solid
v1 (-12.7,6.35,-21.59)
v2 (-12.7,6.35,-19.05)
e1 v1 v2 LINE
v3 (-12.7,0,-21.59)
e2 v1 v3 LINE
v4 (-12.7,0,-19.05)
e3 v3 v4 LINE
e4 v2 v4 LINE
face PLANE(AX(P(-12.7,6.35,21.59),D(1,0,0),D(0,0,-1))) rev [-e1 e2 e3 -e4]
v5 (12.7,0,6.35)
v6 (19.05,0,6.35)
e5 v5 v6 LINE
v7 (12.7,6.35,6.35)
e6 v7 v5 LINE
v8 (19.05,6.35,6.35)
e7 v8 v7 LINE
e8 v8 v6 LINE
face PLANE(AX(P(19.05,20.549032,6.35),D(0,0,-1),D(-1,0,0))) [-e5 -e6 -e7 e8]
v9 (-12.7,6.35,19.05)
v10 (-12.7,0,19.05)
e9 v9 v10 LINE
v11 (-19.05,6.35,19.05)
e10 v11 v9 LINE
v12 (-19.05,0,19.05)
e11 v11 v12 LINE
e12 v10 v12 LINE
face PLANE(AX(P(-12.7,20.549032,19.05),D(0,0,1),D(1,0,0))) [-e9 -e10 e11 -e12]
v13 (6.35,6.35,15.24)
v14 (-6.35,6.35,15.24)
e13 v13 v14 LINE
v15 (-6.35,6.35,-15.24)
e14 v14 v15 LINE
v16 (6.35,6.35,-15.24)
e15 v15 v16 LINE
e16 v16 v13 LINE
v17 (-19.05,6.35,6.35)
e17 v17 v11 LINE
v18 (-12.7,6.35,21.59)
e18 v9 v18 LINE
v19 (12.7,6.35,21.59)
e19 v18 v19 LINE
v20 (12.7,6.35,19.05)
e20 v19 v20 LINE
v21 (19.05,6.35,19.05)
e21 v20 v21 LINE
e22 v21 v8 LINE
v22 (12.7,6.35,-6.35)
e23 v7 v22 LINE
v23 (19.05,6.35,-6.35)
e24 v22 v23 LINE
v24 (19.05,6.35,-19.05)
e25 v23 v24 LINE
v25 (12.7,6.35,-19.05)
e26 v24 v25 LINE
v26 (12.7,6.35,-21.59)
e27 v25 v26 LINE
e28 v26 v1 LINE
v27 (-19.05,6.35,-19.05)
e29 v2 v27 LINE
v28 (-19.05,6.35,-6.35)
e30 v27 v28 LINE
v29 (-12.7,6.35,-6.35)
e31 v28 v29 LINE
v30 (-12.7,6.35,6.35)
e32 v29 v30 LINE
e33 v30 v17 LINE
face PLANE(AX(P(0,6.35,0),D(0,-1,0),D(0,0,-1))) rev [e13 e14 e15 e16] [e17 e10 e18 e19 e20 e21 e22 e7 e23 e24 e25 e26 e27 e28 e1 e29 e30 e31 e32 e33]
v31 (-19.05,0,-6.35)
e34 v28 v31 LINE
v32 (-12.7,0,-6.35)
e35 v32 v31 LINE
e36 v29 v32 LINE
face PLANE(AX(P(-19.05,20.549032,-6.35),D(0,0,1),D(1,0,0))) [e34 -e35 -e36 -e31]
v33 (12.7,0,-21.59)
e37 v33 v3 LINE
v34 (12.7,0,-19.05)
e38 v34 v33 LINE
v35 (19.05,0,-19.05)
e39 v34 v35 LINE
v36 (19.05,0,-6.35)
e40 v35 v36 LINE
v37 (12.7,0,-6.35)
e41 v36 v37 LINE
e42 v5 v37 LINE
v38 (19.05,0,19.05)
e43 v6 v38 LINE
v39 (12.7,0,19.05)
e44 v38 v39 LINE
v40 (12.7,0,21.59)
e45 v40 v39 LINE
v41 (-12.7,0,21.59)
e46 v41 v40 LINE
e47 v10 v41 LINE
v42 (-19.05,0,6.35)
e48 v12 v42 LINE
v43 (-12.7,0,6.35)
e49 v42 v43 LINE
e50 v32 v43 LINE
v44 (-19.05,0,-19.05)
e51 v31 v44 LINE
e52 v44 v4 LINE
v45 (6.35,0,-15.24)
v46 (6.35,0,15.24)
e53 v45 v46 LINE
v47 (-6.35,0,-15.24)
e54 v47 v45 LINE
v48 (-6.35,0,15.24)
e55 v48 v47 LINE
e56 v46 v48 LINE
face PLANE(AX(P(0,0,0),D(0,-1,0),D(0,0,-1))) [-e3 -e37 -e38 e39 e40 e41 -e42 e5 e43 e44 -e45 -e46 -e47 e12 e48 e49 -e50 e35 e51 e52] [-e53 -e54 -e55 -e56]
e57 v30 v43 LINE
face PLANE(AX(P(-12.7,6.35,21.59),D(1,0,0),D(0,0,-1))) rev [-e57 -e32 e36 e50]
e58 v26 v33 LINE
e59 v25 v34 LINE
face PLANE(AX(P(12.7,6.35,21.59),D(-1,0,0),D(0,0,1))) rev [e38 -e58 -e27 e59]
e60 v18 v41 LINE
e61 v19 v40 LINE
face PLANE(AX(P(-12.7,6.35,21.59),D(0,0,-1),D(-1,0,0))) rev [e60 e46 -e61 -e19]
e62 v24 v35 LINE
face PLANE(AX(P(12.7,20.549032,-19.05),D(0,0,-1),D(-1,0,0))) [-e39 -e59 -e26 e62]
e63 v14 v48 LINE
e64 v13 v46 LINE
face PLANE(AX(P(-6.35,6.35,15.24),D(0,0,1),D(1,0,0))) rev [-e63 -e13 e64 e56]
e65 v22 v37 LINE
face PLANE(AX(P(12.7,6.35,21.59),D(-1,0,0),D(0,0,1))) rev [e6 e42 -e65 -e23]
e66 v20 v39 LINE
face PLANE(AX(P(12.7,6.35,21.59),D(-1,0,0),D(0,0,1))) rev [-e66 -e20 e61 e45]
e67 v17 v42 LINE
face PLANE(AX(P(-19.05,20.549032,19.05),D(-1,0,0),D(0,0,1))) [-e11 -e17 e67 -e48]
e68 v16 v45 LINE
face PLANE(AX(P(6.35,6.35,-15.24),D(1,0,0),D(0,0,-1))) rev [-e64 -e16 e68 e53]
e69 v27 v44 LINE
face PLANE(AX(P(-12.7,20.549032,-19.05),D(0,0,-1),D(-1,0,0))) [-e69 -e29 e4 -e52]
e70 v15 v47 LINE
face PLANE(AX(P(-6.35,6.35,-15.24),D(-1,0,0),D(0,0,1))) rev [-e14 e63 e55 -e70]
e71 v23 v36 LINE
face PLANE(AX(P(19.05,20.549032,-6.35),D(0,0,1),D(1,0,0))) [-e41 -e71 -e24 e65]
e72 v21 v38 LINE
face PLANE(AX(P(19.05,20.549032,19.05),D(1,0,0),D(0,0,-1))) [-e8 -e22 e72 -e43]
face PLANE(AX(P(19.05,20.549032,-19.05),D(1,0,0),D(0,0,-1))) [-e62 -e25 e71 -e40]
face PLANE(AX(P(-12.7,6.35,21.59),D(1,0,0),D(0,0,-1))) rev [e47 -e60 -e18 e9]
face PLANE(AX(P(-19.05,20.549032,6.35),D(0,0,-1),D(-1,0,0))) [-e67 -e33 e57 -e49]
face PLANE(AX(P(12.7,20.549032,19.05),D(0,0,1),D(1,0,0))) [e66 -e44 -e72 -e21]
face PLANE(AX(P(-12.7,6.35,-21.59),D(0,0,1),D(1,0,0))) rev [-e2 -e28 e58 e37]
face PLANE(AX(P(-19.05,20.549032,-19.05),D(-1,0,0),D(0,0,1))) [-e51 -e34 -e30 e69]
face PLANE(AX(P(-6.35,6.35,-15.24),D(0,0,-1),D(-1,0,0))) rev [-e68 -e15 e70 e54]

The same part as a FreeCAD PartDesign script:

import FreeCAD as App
import Part
import Sketcher
Q = App.Units.Quantity


def add_polygon(sketch, points):
    """Adds a closed chain of lines whose ends are joined by coincident constraints."""
    first, n = sketch.GeometryCount, len(points)
    for a, b in zip(points, points[1:] + points[:1]):
        sketch.addGeometry(Part.LineSegment(App.Vector(*a, 0), App.Vector(*b, 0)), False)
    for i in range(n):
        sketch.addConstraint(Sketcher.Constraint("Coincident", first + i, 2, first + (i + 1) % n, 1))

doc = App.newDocument("Part")
body = doc.addObject("PartDesign::Body", "Body")

sketch1 = body.newObject("Sketcher::SketchObject", "Sketch")
sketch1.AttachmentSupport = (doc.getObject("XZ_Plane"), [""])
sketch1.MapMode = "FlatFace"
add_polygon(sketch1, [(-13, -22), (-13, 22), (13, 22), (13, -22)])
sketch1.addConstraint([
    Sketcher.Constraint("Vertical", 0),
    Sketcher.Constraint("Horizontal", 1),
    Sketcher.Constraint("Vertical", 2),
    Sketcher.Constraint("Horizontal", 3),
    Sketcher.Constraint("Symmetric", 0, 2, 2, 2, -1, 1),
    Sketcher.Constraint("DistanceX", 1, 1, 1, 2, Q("1 in")),
    Sketcher.Constraint("DistanceY", 0, 1, 0, 2, Q("1.7 in")),
])
pad1 = body.newObject("PartDesign::Pad", "Pad")
pad1.Profile = sketch1
pad1.Length = Q("0.25 in")
pad1.Reversed = True

sketch2 = body.newObject("Sketcher::SketchObject", "Sketch001")
sketch2.AttachmentSupport = (doc.getObject("XZ_Plane"), [""])
sketch2.MapMode = "FlatFace"
add_polygon(sketch2, [(-19, 19), (-19, 6), (-13, 6), (-13, 19)])
add_polygon(sketch2, [(13, 19), (13, 6), (19, 6), (19, 19)])
add_polygon(sketch2, [(13, -6), (13, -19), (19, -19), (19, -6)])
add_polygon(sketch2, [(-19, -6), (-19, -19), (-13, -19), (-13, -6)])
sketch2.addConstraint([
    Sketcher.Constraint("Vertical", 0),
    Sketcher.Constraint("Horizontal", 1),
    Sketcher.Constraint("Vertical", 2),
    Sketcher.Constraint("Horizontal", 3),
    Sketcher.Constraint("Vertical", 4),
    Sketcher.Constraint("Horizontal", 5),
    Sketcher.Constraint("Vertical", 6),
    Sketcher.Constraint("Horizontal", 7),
    Sketcher.Constraint("Vertical", 8),
    Sketcher.Constraint("Horizontal", 9),
    Sketcher.Constraint("Vertical", 10),
    Sketcher.Constraint("Horizontal", 11),
    Sketcher.Constraint("Vertical", 12),
    Sketcher.Constraint("Horizontal", 13),
    Sketcher.Constraint("Vertical", 14),
    Sketcher.Constraint("Horizontal", 15),
    Sketcher.Constraint("Symmetric", 2, 2, 8, 2, -1, 1),
    Sketcher.Constraint("Symmetric", 0, 2, 10, 2, -1, 1),
    Sketcher.Constraint("Symmetric", 6, 2, 12, 2, -1, 1),
    Sketcher.Constraint("Symmetric", 4, 2, 14, 2, -1, 1),
    Sketcher.Constraint("Symmetric", 1, 2, 4, 2, -2),
    Sketcher.Constraint("Symmetric", 3, 2, 6, 2, -2),
    Sketcher.Constraint("DistanceY", 0, 2, 0, 1, Q("0.5 in")),
    Sketcher.Constraint("DistanceX", 1, 2, 4, 2, Q("1 in")),
    Sketcher.Constraint("DistanceY", 8, 2, 4, 2, Q("1 in")),
    Sketcher.Constraint("DistanceX", 1, 1, 1, 2, Q("0.25 in")),
])
pad2 = body.newObject("PartDesign::Pad", "Pad001")
pad2.Profile = sketch2
pad2.Length = Q("0.25 in")
pad2.Reversed = True

sketch3 = body.newObject("Sketcher::SketchObject", "Sketch002")
sketch3.AttachmentSupport = (doc.getObject("XZ_Plane"), [""])
sketch3.MapMode = "FlatFace"
add_polygon(sketch3, [(-6, 15), (-6, -15), (6, -15), (6, 15)])
sketch3.addConstraint([
    Sketcher.Constraint("Vertical", 0),
    Sketcher.Constraint("Horizontal", 1),
    Sketcher.Constraint("Vertical", 2),
    Sketcher.Constraint("Horizontal", 3),
    Sketcher.Constraint("Symmetric", 0, 2, 2, 2, -1, 1),
    Sketcher.Constraint("DistanceX", 1, 1, 1, 2, Q("0.5 in")),
    Sketcher.Constraint("DistanceY", 0, 2, 0, 1, Q("1.2 in")),
])
pocket1 = body.newObject("PartDesign::Pocket", "Pocket")
pocket1.Profile = sketch3
pocket1.Type = "ThroughAll"

doc.recompute()
